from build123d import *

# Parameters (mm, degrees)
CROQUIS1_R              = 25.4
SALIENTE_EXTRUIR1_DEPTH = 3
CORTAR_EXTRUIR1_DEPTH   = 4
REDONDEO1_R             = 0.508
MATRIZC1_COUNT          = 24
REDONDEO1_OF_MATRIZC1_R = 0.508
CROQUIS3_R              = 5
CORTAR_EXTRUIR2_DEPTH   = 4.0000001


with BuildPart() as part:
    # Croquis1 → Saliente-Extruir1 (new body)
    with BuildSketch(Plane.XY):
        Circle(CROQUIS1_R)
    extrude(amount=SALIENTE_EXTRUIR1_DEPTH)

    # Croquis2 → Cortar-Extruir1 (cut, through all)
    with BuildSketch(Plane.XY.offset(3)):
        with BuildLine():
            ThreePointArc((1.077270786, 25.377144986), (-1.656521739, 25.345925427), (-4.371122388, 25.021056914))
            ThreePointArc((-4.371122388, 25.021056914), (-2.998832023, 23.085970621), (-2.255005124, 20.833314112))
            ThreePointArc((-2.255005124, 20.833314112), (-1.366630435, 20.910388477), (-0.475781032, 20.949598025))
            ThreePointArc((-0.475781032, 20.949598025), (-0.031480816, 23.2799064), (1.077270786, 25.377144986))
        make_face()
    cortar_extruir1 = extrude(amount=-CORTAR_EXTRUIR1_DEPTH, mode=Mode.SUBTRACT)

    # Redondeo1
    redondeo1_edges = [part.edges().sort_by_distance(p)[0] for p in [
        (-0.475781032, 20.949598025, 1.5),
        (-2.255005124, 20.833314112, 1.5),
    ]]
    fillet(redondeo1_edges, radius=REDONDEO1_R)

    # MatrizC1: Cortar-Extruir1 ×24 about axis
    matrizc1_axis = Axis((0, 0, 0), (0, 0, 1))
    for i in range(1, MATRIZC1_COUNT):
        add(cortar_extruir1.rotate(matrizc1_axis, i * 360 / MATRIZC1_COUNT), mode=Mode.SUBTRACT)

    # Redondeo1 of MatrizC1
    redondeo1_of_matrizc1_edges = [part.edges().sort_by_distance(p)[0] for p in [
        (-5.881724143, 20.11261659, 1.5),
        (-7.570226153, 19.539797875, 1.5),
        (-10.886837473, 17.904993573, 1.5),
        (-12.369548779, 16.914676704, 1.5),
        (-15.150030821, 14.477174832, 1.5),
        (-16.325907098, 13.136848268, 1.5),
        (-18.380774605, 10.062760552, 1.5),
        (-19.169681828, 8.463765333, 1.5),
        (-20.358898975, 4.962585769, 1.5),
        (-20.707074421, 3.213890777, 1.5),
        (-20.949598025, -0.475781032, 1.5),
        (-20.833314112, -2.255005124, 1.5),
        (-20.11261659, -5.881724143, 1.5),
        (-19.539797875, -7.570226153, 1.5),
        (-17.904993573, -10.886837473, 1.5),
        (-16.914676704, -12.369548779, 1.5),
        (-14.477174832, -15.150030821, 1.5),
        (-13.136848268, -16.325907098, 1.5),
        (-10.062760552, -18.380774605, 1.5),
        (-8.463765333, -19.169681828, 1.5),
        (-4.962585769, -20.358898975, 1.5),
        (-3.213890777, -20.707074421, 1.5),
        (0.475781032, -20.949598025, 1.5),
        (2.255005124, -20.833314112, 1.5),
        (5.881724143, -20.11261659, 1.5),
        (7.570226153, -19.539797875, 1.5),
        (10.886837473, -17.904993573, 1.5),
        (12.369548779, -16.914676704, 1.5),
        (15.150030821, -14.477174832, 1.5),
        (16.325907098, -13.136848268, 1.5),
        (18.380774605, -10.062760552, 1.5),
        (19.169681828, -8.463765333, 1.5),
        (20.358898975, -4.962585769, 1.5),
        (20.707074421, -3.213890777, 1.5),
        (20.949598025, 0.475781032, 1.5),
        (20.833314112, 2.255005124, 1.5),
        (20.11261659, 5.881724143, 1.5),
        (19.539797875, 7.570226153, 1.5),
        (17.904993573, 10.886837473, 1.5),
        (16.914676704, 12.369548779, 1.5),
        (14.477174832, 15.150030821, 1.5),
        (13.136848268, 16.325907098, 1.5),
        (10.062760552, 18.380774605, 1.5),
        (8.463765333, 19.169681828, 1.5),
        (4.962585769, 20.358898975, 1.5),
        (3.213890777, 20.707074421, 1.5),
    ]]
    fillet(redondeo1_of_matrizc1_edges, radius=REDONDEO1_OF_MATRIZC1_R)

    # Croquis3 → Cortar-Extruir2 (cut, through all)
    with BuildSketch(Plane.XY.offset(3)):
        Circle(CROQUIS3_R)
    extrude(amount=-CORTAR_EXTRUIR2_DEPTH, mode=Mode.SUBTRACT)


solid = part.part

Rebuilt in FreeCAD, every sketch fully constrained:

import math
import FreeCAD as App
import Part
import Sketcher


def edges_at(feature, points):
    """Names of the edges that pass closest to the given points."""
    edges = feature.Shape.Edges
    near = lambda p: min(range(len(edges)), key=lambda i: edges[i].distToShape(Part.Vertex(*p))[0])
    return sorted({f"Edge{near(p) + 1}" for p in points})

doc = App.newDocument("Part")
body = doc.addObject("PartDesign::Body", "Body")

# Sketch on XY plane
sketch1 = body.newObject("Sketcher::SketchObject", "Sketch")
sketch1.AttachmentSupport = (doc.getObject("XY_Plane"), [""])
sketch1.MapMode = "FlatFace"
sketch1.addGeometry(Part.Circle(App.Vector(0, 0, 0), App.Vector(0, 0, 1), 25), False)
sketch1.addConstraint(Sketcher.Constraint("Coincident", 0, 3, -1, 1))
sketch1.addConstraint(Sketcher.Constraint("Diameter", 0, 50.8))
pad1 = body.newObject("PartDesign::Pad", "Pad")
pad1.Profile = sketch1
pad1.Length = 3

# Sketch on XY plane
sketch2 = body.newObject("Sketcher::SketchObject", "Sketch001")
sketch2.AttachmentSupport = (doc.getObject("XY_Plane"), [""])
sketch2.MapMode = "FlatFace"
sketch2.AttachmentOffset = App.Placement(App.Vector(0, 0, 3), App.Rotation())
sketch2.addGeometry(Part.ArcOfCircle(Part.Circle(App.Vector(0, 0, 0), App.Vector(0, 0, 1), 25.4), math.radians(87.57), math.radians(99.91)), False)
sketch2.addGeometry(Part.ArcOfCircle(Part.Circle(App.Vector(-10.1, 19.5, 0), App.Vector(0, 0, 1), 8), math.radians(10), math.radians(44)), False)
sketch2.addGeometry(Part.ArcOfCircle(Part.Circle(App.Vector(0, 0, 0), App.Vector(0, 0, 1), 21), math.radians(91.3), math.radians(96.18)), False)
sketch2.addGeometry(Part.ArcOfCircle(Part.Circle(App.Vector(7.5, 20.6, 0), App.Vector(0, 0, 1), 8), math.radians(144), math.radians(178)), False)
sketch2.addConstraint(Sketcher.Constraint("Coincident", 0, 2, 1, 2))
sketch2.addConstraint(Sketcher.Constraint("Coincident", 1, 1, 2, 2))
sketch2.addConstraint(Sketcher.Constraint("Coincident", 2, 1, 3, 2))
sketch2.addConstraint(Sketcher.Constraint("Coincident", 3, 1, 0, 1))
sketch2.addConstraint(Sketcher.Constraint("Coincident", 0, 3, -1, 1))
sketch2.addConstraint(Sketcher.Constraint("Coincident", 2, 3, -1, 1))
sketch2.addConstraint(Sketcher.Constraint("Equal", 1, 3))
sketch2.addConstraint(Sketcher.Constraint("Radius", 0, 25.4))
sketch2.addConstraint(Sketcher.Constraint("Radius", 2, 20.955))
sketch2.addConstraint(Sketcher.Constraint("Radius", 1, 7.992327))
sketch2.addConstraint(Sketcher.Constraint("DistanceY", -1, 1, 2, 1, 20.949598))
sketch2.addConstraint(Sketcher.Constraint("DistanceY", -1, 1, 1, 3, 19.481411))
sketch2.addConstraint(Sketcher.Constraint("DistanceX", -1, 1, 3, 3, 7.51033))
sketch2.addConstraint(Sketcher.Constraint("DistanceX", 1, 3, 1, 1, 7.87716))
pocket1 = body.newObject("PartDesign::Pocket", "Pocket")
pocket1.Profile = sketch2
pocket1.Type = "ThroughAll"
doc.recompute()

fillet = body.newObject("PartDesign::Fillet", "Fillet")
fillet.Base = (pocket1, edges_at(pocket1, [(-0.476, 20.95, 1.5), (-2.255, 20.833, 1.5)]))
fillet.Radius = 0.508
doc.recompute()

polarpattern = body.newObject("PartDesign::PolarPattern", "PolarPattern")
polarpattern.Originals = [pocket1]
polarpattern.Axis = (doc.getObject("Z_Axis"), [""])
polarpattern.Angle = 360
polarpattern.Occurrences = 24
body.Tip = polarpattern
doc.recompute()

fillet2 = body.newObject("PartDesign::Fillet", "Fillet001")
fillet2.Base = (polarpattern, edges_at(polarpattern, [
    (-5.882, 20.113, 1.5),
    (-7.57, 19.54, 1.5),
    (-10.887, 17.905, 1.5),
    (-12.37, 16.915, 1.5),
    (-15.15, 14.477, 1.5),
    (-16.326, 13.137, 1.5),
    (-18.381, 10.063, 1.5),
    (-19.17, 8.464, 1.5),
    (-20.359, 4.963, 1.5),
    (-20.707, 3.214, 1.5),
    (-20.95, -0.476, 1.5),
    (-20.833, -2.255, 1.5),
    (-20.113, -5.882, 1.5),
    (-19.54, -7.57, 1.5),
    (-17.905, -10.887, 1.5),
    (-16.915, -12.37, 1.5),
    (-14.477, -15.15, 1.5),
    (-13.137, -16.326, 1.5),
    (-10.063, -18.381, 1.5),
    (-8.464, -19.17, 1.5),
    (-4.963, -20.359, 1.5),
    (-3.214, -20.707, 1.5),
    (0.476, -20.95, 1.5),
    (2.255, -20.833, 1.5),
    (5.882, -20.113, 1.5),
    (7.57, -19.54, 1.5),
    (10.887, -17.905, 1.5),
    (12.37, -16.915, 1.5),
    (15.15, -14.477, 1.5),
    (16.326, -13.137, 1.5),
    (18.381, -10.063, 1.5),
    (19.17, -8.464, 1.5),
    (20.359, -4.963, 1.5),
    (20.707, -3.214, 1.5),
    (20.95, 0.476, 1.5),
    (20.833, 2.255, 1.5),
    (20.113, 5.882, 1.5),
    (19.54, 7.57, 1.5),
    (17.905, 10.887, 1.5),
    (16.915, 12.37, 1.5),
    (14.477, 15.15, 1.5),
    (13.137, 16.326, 1.5),
    (10.063, 18.381, 1.5),
    (8.464, 19.17, 1.5),
    (4.963, 20.359, 1.5),
    (3.214, 20.707, 1.5),
]))
fillet2.Radius = 0.508

# Sketch on XY plane
sketch3 = body.newObject("Sketcher::SketchObject", "Sketch002")
sketch3.AttachmentSupport = (doc.getObject("XY_Plane"), [""])
sketch3.MapMode = "FlatFace"
sketch3.AttachmentOffset = App.Placement(App.Vector(0, 0, 3), App.Rotation())
sketch3.addGeometry(Part.Circle(App.Vector(0, 0, 0), App.Vector(0, 0, 1), 5), False)
sketch3.addConstraint(Sketcher.Constraint("Coincident", 0, 3, -1, 1))
sketch3.addConstraint(Sketcher.Constraint("Diameter", 0, 10.0))
pocket2 = body.newObject("PartDesign::Pocket", "Pocket001")
pocket2.Profile = sketch3
pocket2.Type = "ThroughAll"

doc.recompute()
